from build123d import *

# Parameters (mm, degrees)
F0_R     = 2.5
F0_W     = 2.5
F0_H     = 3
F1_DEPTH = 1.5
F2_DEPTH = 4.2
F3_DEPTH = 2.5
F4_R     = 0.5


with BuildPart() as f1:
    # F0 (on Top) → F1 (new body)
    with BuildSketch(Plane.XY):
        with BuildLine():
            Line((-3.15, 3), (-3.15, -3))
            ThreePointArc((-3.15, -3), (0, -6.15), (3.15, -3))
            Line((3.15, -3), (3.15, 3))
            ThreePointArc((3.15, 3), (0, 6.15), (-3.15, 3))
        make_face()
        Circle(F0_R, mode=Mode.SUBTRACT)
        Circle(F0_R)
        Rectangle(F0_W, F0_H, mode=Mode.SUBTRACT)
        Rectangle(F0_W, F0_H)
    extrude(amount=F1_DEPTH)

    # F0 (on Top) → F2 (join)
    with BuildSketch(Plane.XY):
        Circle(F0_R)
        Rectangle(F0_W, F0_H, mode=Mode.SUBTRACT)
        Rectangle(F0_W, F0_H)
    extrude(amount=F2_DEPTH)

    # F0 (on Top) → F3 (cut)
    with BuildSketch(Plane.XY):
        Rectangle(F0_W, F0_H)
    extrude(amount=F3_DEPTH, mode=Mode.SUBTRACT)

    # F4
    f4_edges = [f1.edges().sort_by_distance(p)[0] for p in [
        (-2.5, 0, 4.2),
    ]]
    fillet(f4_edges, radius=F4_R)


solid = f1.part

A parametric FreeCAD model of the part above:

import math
import FreeCAD as App
import Part
import Sketcher

V = App.Vector


def edges_at(feature, points):
    """Names of the edges that pass closest to the given points."""
    edges = feature.Shape.Edges
    near = lambda p: min(range(len(edges)), key=lambda i: edges[i].distToShape(Part.Vertex(*p))[0])
    return sorted({f"Edge{near(p) + 1}" for p in points})


def add_polygon(sketch, points):
    """Adds a closed chain of lines whose ends are joined by coincident constraints."""
    first, n = sketch.GeometryCount, len(points)
    for a, b in zip(points, points[1:] + points[:1]):
        sketch.addGeometry(Part.LineSegment(App.Vector(*a, 0), App.Vector(*b, 0)), False)
    for i in range(n):
        sketch.addConstraint(Sketcher.Constraint("Coincident", first + i, 2, first + (i + 1) % n, 1))

doc = App.newDocument("Part")
body = doc.addObject("PartDesign::Body", "Body")

sketch1 = body.newObject("Sketcher::SketchObject", "Sketch")
sketch1.AttachmentSupport = (doc.getObject("XY_Plane"), [""])
sketch1.MapMode = "FlatFace"
sketch1.addGeometry([
    Part.LineSegment(V(-3.1, 3, 0), V(-3.1, -3, 0)),
    Part.ArcOfCircle(Part.Circle(V(0, -3, 0), V(0, 0, 1), 3.1), math.radians(180), math.radians(360)),
    Part.LineSegment(V(3.1, -3, 0), V(3.1, 3, 0)),
    Part.ArcOfCircle(Part.Circle(V(0, 3, 0), V(0, 0, 1), 3.1), math.radians(0), math.radians(180)),
], False)
sketch1.addConstraint([
    Sketcher.Constraint("Tangent", 0, 2, 1, 1),
    Sketcher.Constraint("Tangent", 1, 2, 2, 1),
    Sketcher.Constraint("Tangent", 2, 2, 3, 1),
    Sketcher.Constraint("Tangent", 3, 2, 0, 1),
    Sketcher.Constraint("Vertical", 0),
    Sketcher.Constraint("Vertical", 2),
    Sketcher.Constraint("Symmetric", 1, 3, 3, 3, -1, 1),
    Sketcher.Constraint("DistanceY", 0, 2, 0, 1, 6.0),
    Sketcher.Constraint("Radius", 1, 3.15),
])
pad1 = body.newObject("PartDesign::Pad", "Pad")
pad1.Profile = sketch1
pad1.Length = 1.5

sketch2 = body.newObject("Sketcher::SketchObject", "Sketch001")
sketch2.AttachmentSupport = (doc.getObject("XY_Plane"), [""])
sketch2.MapMode = "FlatFace"
sketch2.addGeometry(Part.Circle(V(0, 0, 0), V(0, 0, 1), 2.5), False)
sketch2.addConstraint([
    Sketcher.Constraint("Coincident", 0, 3, -1, 1),
    Sketcher.Constraint("Diameter", 0, 5.0),
])
pad2 = body.newObject("PartDesign::Pad", "Pad001")
pad2.Profile = sketch2
pad2.Length = 4.2

sketch3 = body.newObject("Sketcher::SketchObject", "Sketch002")
sketch3.AttachmentSupport = (doc.getObject("XY_Plane"), [""])
sketch3.MapMode = "FlatFace"
add_polygon(sketch3, [(-1.2, 1.5), (-1.2, -1.5), (1.2, -1.5), (1.2, 1.5)])
sketch3.addConstraint([
    Sketcher.Constraint("Vertical", 0),
    Sketcher.Constraint("Horizontal", 1),
    Sketcher.Constraint("Vertical", 2),
    Sketcher.Constraint("Horizontal", 3),
    Sketcher.Constraint("Symmetric", 0, 2, 2, 2, -1, 1),
    Sketcher.Constraint("DistanceY", 0, 2, 0, 1, 3.0),
    Sketcher.Constraint("DistanceX", 1, 1, 1, 2, 2.5),
])
pocket1 = body.newObject("PartDesign::Pocket", "Pocket")
pocket1.Profile = sketch3
pocket1.Length = 2.5
pocket1.Reversed = True
doc.recompute()

fillet = body.newObject("PartDesign::Fillet", "Fillet")
fillet.Base = (pocket1, edges_at(pocket1, [(-2.5, 0, 4.2)]))
fillet.Radius = 0.5

doc.recompute()
